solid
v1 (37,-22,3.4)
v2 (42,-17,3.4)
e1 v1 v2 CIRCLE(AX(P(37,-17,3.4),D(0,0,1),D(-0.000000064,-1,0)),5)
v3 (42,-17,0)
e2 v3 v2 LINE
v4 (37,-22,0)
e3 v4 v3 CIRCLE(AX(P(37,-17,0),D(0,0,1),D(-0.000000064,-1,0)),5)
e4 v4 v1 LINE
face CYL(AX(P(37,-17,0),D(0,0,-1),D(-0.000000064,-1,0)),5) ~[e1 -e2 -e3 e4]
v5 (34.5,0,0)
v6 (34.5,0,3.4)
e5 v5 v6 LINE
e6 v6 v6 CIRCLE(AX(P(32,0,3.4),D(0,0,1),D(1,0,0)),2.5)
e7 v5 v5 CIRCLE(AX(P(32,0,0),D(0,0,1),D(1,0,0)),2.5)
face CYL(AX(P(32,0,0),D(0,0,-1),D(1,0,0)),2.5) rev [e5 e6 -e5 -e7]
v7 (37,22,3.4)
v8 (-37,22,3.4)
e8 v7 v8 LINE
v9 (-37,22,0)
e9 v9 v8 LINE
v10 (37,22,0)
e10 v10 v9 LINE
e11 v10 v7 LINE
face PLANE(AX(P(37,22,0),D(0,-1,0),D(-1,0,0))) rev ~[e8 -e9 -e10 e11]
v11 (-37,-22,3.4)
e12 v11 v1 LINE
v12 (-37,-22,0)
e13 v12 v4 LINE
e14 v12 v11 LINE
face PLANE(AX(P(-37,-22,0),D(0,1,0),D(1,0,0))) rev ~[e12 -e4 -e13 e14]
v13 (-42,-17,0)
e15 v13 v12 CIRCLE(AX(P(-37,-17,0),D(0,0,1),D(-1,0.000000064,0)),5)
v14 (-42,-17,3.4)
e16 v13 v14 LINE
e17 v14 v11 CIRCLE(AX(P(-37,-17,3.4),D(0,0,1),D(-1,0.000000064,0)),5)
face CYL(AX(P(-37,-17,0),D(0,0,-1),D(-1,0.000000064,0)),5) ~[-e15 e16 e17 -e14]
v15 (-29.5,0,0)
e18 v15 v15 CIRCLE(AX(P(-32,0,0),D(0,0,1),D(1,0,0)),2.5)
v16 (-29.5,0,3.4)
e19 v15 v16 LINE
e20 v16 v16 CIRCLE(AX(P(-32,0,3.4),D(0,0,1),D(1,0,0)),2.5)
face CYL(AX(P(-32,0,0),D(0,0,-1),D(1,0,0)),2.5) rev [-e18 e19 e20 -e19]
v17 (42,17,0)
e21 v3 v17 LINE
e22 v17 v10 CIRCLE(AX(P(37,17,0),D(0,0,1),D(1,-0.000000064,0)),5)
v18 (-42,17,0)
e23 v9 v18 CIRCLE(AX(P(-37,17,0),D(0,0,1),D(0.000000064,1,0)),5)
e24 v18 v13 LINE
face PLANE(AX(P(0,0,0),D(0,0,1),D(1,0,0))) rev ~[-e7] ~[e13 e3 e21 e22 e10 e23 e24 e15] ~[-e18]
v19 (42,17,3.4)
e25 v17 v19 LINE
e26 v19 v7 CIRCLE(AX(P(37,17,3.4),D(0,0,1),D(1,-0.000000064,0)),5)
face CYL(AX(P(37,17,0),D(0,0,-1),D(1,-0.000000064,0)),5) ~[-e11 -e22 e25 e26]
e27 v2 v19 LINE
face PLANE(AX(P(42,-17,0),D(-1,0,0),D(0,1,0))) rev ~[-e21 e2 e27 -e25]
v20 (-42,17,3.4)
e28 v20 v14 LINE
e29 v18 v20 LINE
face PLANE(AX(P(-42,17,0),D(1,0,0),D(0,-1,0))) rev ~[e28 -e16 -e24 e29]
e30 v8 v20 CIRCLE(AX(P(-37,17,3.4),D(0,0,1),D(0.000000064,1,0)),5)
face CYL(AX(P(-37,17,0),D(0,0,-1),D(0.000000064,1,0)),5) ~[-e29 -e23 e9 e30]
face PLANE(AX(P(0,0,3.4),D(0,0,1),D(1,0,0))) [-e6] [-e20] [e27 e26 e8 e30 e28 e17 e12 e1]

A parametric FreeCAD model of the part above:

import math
import FreeCAD as App
import Part
import Sketcher

V = App.Vector

doc = App.newDocument("Part")
body = doc.addObject("PartDesign::Body", "Body")

sketch1 = body.newObject("Sketcher::SketchObject", "Sketch")
sketch1.AttachmentSupport = (doc.getObject("XY_Plane"), [""])
sketch1.MapMode = "FlatFace"
sketch1.addGeometry([
    Part.LineSegment(V(-42, 17, 0), V(-42, -17, 0)),
    Part.ArcOfCircle(Part.Circle(V(-37, -17, 0), V(0, 0, 1), 5), math.radians(180), math.radians(270)),
    Part.LineSegment(V(-37, -22, 0), V(37, -22, 0)),
    Part.ArcOfCircle(Part.Circle(V(37, -17, 0), V(0, 0, 1), 5), math.radians(-90), math.radians(0)),
    Part.LineSegment(V(42, -17, 0), V(42, 17, 0)),
    Part.ArcOfCircle(Part.Circle(V(37, 17, 0), V(0, 0, 1), 5), math.radians(0), math.radians(90)),
    Part.LineSegment(V(37, 22, 0), V(-37, 22, 0)),
    Part.ArcOfCircle(Part.Circle(V(-37, 17, 0), V(0, 0, 1), 5), math.radians(90), math.radians(180)),
    Part.Circle(V(-32, 0, 0), V(0, 0, 1), 2.5),
    Part.Circle(V(32, 0, 0), V(0, 0, 1), 2.5),
], False)
sketch1.addConstraint([
    Sketcher.Constraint("Tangent", 0, 2, 1, 1),
    Sketcher.Constraint("Tangent", 1, 2, 2, 1),
    Sketcher.Constraint("Tangent", 2, 2, 3, 1),
    Sketcher.Constraint("Tangent", 3, 2, 4, 1),
    Sketcher.Constraint("Tangent", 4, 2, 5, 1),
    Sketcher.Constraint("Tangent", 5, 2, 6, 1),
    Sketcher.Constraint("Tangent", 6, 2, 7, 1),
    Sketcher.Constraint("Tangent", 7, 2, 0, 1),
    Sketcher.Constraint("Vertical", 0),
    Sketcher.Constraint("Horizontal", 2),
    Sketcher.Constraint("Vertical", 4),
    Sketcher.Constraint("Horizontal", 6),
    Sketcher.Constraint("Equal", 1, 3),
    Sketcher.Constraint("Equal", 3, 5),
    Sketcher.Constraint("Equal", 5, 7),
    Sketcher.Constraint("Equal", 8, 9),
    Sketcher.Constraint("Symmetric", 1, 3, 5, 3, -1, 1),
    Sketcher.Constraint("Symmetric", 8, 3, 9, 3, -1, 1),
    Sketcher.Constraint("PointOnObject", 8, 3, -1),
    Sketcher.Constraint("Diameter", 8, 5.0),
    Sketcher.Constraint("Radius", 1, 5.0),
    Sketcher.Constraint("DistanceX", 2, 1, 2, 2, 74.0),
    Sketcher.Constraint("DistanceY", 0, 2, 0, 1, 34.0),
    Sketcher.Constraint("DistanceX", 8, 3, -1, 1, 32.0),
])
pad1 = body.newObject("PartDesign::Pad", "Pad")
pad1.Profile = sketch1
pad1.Length = 3.4

doc.recompute()
